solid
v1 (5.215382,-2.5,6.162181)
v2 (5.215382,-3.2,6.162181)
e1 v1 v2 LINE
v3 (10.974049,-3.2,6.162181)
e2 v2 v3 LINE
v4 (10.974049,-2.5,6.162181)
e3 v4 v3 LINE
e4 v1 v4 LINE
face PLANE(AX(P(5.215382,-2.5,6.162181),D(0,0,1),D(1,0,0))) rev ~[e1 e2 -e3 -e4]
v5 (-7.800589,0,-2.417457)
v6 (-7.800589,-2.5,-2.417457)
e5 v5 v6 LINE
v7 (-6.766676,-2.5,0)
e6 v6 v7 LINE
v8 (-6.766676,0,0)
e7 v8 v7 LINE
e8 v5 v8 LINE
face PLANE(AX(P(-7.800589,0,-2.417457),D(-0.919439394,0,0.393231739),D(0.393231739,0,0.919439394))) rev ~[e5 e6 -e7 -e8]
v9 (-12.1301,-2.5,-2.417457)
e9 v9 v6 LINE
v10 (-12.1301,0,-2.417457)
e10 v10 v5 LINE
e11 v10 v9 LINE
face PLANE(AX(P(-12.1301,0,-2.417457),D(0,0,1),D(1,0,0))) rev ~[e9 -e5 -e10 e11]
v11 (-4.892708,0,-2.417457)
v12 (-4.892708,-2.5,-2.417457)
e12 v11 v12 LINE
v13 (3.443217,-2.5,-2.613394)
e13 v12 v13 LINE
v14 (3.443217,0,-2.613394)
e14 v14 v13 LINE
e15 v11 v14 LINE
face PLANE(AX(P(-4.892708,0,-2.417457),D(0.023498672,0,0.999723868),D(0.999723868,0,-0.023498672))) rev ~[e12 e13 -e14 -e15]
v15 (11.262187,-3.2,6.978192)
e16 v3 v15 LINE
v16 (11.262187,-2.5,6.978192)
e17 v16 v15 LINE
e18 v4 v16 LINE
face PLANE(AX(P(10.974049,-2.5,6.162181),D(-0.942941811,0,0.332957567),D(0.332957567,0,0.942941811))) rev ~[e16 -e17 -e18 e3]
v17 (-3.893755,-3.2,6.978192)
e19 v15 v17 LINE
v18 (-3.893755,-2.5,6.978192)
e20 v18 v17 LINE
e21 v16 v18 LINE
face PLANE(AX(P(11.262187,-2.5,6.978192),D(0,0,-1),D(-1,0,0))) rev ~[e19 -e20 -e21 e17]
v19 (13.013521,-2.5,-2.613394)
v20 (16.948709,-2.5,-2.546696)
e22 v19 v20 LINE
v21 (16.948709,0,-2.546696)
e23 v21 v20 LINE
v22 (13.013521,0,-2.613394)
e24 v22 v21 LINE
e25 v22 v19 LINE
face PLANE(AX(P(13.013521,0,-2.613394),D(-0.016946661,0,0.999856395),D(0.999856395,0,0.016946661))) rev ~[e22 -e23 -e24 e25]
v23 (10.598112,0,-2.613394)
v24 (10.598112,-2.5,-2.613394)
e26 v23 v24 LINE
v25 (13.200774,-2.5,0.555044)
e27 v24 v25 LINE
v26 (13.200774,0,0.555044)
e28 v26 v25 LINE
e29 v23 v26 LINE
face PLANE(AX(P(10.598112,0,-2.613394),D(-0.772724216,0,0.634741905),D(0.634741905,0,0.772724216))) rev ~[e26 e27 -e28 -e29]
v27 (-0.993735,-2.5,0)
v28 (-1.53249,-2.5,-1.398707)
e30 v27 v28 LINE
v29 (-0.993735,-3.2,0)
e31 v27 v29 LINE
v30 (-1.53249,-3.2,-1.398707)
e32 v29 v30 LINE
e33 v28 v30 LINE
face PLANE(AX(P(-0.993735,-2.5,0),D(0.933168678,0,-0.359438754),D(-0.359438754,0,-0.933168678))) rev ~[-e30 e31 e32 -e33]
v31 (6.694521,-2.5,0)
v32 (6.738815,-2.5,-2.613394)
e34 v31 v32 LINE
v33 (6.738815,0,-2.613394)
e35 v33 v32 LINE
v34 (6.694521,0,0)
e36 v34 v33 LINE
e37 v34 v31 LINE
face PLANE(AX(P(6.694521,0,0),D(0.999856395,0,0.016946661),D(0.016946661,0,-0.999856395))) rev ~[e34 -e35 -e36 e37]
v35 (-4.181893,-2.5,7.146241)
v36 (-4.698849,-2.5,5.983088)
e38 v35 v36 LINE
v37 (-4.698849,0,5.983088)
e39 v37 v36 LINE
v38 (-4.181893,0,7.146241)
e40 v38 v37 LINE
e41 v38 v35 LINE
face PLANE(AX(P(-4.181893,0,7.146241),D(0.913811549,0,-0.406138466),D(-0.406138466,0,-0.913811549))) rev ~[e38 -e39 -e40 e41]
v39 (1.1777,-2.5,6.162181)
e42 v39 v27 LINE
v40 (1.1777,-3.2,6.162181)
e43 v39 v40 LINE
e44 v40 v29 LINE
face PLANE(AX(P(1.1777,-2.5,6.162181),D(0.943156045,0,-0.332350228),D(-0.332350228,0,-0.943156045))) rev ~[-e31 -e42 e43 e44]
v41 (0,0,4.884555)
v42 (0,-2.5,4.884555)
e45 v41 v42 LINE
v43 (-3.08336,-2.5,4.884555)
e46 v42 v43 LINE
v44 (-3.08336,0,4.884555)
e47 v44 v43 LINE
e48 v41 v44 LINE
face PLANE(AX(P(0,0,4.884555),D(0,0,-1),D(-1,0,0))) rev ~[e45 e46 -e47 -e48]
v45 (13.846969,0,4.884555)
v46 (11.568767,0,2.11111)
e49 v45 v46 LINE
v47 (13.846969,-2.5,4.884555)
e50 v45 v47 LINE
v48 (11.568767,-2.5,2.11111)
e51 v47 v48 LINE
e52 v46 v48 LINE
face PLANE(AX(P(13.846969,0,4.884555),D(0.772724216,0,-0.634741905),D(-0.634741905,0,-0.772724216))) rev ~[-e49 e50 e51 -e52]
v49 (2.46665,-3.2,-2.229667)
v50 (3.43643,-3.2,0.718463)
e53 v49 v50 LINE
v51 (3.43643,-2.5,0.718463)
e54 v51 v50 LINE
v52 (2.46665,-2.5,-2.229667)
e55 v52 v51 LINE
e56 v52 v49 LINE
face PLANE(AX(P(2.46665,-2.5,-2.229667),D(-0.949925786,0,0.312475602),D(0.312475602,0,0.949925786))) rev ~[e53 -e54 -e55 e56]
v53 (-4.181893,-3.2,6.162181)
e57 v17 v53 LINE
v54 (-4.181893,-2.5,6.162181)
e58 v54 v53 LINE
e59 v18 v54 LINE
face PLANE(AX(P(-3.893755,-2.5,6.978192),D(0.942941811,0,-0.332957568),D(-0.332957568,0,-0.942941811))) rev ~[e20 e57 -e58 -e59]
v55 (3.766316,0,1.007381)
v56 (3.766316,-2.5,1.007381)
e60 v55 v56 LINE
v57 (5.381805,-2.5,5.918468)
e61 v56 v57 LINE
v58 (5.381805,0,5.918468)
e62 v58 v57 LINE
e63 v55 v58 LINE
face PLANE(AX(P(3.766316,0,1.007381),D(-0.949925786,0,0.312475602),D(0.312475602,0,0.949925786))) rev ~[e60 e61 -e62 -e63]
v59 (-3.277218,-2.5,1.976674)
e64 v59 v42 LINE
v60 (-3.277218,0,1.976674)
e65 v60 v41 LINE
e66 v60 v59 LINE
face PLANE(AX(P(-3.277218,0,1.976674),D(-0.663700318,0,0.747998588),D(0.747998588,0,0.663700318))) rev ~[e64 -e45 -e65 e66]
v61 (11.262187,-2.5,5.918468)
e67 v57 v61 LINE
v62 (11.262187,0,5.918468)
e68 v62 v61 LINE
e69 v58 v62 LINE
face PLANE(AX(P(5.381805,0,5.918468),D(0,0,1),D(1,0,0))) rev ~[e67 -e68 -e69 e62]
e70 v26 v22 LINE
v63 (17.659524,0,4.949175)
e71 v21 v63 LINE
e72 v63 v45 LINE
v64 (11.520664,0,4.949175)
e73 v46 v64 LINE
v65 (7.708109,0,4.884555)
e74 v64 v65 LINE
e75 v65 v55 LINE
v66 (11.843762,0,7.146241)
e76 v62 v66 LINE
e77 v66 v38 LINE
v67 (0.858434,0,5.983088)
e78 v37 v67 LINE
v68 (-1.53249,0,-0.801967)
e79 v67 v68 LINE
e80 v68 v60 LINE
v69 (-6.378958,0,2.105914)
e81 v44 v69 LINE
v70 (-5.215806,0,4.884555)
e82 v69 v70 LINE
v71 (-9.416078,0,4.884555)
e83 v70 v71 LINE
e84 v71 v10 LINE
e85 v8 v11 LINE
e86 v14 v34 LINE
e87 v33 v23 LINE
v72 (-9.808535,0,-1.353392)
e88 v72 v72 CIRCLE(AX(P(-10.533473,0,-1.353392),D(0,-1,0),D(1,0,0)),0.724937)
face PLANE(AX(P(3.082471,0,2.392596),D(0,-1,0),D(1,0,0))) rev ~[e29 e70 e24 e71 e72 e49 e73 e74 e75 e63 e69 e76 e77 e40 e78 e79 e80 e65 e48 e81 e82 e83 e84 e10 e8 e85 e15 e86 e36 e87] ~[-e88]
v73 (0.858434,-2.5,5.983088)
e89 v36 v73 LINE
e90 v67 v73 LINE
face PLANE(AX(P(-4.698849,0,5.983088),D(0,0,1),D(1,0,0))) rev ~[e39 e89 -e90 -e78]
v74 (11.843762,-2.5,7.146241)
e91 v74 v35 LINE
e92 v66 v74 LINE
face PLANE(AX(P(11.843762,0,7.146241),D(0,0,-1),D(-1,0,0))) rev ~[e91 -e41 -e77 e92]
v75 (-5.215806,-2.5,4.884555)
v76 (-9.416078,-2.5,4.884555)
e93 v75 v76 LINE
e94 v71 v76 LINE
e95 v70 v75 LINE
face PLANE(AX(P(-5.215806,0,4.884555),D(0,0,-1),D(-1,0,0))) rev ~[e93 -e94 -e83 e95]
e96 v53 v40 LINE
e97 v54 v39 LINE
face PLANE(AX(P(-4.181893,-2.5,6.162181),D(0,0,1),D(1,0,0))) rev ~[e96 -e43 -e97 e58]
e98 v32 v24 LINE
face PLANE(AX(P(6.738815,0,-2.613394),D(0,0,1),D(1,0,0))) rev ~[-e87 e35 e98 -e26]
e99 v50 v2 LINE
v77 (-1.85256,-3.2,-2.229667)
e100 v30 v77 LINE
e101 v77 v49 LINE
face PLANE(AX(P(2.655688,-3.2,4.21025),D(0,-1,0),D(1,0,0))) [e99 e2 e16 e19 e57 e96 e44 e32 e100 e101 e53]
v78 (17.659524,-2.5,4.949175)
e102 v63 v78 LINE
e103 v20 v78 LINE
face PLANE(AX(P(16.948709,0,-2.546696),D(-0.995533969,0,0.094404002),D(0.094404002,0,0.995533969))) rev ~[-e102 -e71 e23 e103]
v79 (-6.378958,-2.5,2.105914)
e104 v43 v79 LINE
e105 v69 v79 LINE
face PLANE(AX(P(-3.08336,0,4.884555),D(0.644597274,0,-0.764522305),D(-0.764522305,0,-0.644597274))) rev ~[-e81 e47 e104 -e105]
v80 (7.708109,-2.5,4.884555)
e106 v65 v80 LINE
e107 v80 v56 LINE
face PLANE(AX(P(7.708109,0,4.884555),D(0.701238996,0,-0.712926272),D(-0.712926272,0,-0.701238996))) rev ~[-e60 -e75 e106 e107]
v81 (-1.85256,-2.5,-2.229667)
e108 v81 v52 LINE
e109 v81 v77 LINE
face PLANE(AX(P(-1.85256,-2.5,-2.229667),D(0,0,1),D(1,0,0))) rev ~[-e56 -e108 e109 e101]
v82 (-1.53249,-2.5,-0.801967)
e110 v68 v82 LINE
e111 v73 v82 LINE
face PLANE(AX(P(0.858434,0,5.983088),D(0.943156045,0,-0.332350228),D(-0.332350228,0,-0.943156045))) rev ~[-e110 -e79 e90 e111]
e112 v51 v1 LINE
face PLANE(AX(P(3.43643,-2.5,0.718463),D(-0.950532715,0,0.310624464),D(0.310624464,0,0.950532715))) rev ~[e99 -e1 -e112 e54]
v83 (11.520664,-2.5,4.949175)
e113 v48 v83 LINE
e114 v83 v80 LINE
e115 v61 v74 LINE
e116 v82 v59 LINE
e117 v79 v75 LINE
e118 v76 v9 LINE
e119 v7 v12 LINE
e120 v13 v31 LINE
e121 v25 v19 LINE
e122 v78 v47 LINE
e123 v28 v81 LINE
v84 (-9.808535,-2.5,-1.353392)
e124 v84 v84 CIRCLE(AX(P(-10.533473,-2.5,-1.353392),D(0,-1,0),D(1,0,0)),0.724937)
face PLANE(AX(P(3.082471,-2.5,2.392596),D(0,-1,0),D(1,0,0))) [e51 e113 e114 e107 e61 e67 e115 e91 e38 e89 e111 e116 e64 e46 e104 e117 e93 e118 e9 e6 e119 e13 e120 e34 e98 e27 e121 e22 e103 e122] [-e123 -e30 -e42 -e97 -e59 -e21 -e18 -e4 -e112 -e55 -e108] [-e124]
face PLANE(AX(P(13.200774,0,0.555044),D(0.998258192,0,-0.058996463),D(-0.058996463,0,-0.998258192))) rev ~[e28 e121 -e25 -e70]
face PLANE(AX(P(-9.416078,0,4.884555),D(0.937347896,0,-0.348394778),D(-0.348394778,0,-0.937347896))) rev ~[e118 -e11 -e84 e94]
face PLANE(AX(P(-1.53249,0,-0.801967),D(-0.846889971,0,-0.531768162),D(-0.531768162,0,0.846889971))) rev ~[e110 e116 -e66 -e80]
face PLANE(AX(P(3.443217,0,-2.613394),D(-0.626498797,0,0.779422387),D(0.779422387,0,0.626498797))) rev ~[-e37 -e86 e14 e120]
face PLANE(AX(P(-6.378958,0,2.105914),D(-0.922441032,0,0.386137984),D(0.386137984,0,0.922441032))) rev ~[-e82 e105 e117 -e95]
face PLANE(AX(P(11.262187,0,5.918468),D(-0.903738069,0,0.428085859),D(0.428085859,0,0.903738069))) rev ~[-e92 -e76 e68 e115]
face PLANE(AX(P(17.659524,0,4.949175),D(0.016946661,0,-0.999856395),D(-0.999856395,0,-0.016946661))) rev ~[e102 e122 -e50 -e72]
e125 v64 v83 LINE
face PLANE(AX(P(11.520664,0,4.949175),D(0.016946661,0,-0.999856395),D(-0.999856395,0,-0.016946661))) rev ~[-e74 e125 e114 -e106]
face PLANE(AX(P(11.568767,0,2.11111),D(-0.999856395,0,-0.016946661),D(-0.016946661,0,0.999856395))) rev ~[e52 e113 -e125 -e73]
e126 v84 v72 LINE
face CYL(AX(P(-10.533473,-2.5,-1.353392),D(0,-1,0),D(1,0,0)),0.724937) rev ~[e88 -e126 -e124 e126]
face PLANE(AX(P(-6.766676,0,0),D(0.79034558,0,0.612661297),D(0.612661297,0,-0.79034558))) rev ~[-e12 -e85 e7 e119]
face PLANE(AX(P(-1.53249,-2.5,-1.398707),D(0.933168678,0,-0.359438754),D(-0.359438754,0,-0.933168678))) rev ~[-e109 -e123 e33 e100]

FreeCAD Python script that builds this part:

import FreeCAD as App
import Part
import Sketcher
from FreeCAD import Vector


def add_polygon(sketch, points):
    """Adds a closed chain of lines whose ends are joined by coincident constraints."""
    first, n = sketch.GeometryCount, len(points)
    for a, b in zip(points, points[1:] + points[:1]):
        sketch.addGeometry(Part.LineSegment(App.Vector(*a, 0), App.Vector(*b, 0)), False)
    for i in range(n):
        sketch.addConstraint(Sketcher.Constraint("Coincident", first + i, 2, first + (i + 1) % n, 1))

doc = App.newDocument("Part")
params = doc.addObject("Spreadsheet::Sheet", "Params")
for row, (alias, value) in enumerate([
    ("pad1_length", "2.5 mm"),
    ("pad2_length", "0.7 mm"),
], start=1):
    params.set(f"A{row}", alias)
    params.set(f"B{row}", "=" + value)
    params.setAlias(f"B{row}", alias)

body = doc.addObject("PartDesign::Body", "Body")

# Sketch on XZ plane
sketch1 = body.newObject("Sketcher::SketchObject", "Sketch")
sketch1.AttachmentSupport = (doc.getObject("XZ_Plane"), [""])
sketch1.MapMode = "FlatFace"
add_polygon(sketch1, [(-9.416078, 4.884555), (-12.1301, -2.417457), (-7.800589, -2.417457), (-6.766676, 0), (-4.892708, -2.417457), (3.443217, -2.613394), (6.694521, 0), (6.738815, -2.613394), (10.598112, -2.613394), (13.200774, 0.555044), (13.013521, -2.613394), (16.948709, -2.546696), (17.659524, 4.949175), (13.846969, 4.884555), (11.568767, 2.11111), (11.520664, 4.949175), (7.708109, 4.884555), (3.766316, 1.007381), (5.381805, 5.918468), (11.262187, 5.918468), (11.843762, 7.146241), (-4.181893, 7.146241), (-4.698849, 5.983088), (0.858434, 5.983088), (-1.53249, -0.801967), (-3.277218, 1.976674), (0, 4.884555), (-3.08336, 4.884555), (-6.378958, 2.105914), (-5.215806, 4.884555)])  # lines 0-29
sketch1.addConstraint(Sketcher.Constraint("Horizontal", 1))
sketch1.addConstraint(Sketcher.Constraint("Horizontal", 7))
sketch1.addConstraint(Sketcher.Constraint("Horizontal", 18))
sketch1.addConstraint(Sketcher.Constraint("Horizontal", 20))
sketch1.addConstraint(Sketcher.Constraint("Horizontal", 22))
sketch1.addConstraint(Sketcher.Constraint("Horizontal", 26))
sketch1.addConstraint(Sketcher.Constraint("Horizontal", 29))
sketch1.addConstraint(Sketcher.Constraint("PointOnObject", 2, 2, -1))
sketch1.addConstraint(Sketcher.Constraint("PointOnObject", 5, 2, -1))
sketch1.addConstraint(Sketcher.Constraint("PointOnObject", 25, 2, -2))
sketch1.addConstraint(Sketcher.Constraint("Perpendicular", 6, 10))
sketch1.addConstraint(Sketcher.Constraint("Parallel", 10, 12))
sketch1.addConstraint(Sketcher.Constraint("Parallel", 8, 13))
sketch1.addConstraint(Sketcher.Constraint("Perpendicular", 12, 14))
sketch1.addConstraint(Sketcher.Constraint("Perpendicular", 14, 15))
sketch1.addConstraint(Sketcher.Constraint("Horizontal", 1, 2, 3, 2))
sketch1.addConstraint(Sketcher.Constraint("Horizontal", 4, 2, 6, 2))
sketch1.addConstraint(Sketcher.Constraint("Horizontal", 7, 2, 9, 2))
sketch1.addConstraint(Sketcher.Constraint("Horizontal", 11, 2, 14, 2))
sketch1.addConstraint(Sketcher.Constraint("Horizontal", 12, 2, 15, 2))
sketch1.addConstraint(Sketcher.Constraint("Horizontal", 15, 2, 25, 2))
sketch1.addConstraint(Sketcher.Constraint("Horizontal", 26, 2, 28, 2))
sketch1.addConstraint(Sketcher.Constraint("DistanceX", 5, 2, 9, 2, 6.319))
sketch1.addConstraint(Sketcher.Constraint("DistanceX", 1, 1, 1, 2, 4.329511))
sketch1.addConstraint(Sketcher.Constraint("DistanceX", 18, 1, 18, 2, 5.880382))
sketch1.addConstraint(Sketcher.Constraint("DistanceX", 26, 2, 26, 1, 3.08336))
sketch1.addConstraint(Sketcher.Constraint("DistanceX", 0, 2, -1, 1, 12.1301))
sketch1.addConstraint(Sketcher.Constraint("DistanceX", 4, 2, 6, 2, 3.295598))
sketch1.addConstraint(Sketcher.Constraint("DistanceY", 3, 2, 8, 2, 2.9725))
sketch1.addConstraint(Sketcher.Constraint("DistanceX", 4, 2, 16, 2, 0.323098))
sketch1.addConstraint(Sketcher.Constraint("DistanceX", 14, 2, 19, 2, 0.323098))
sketch1.addConstraint(Sketcher.Constraint("DistanceX", 1, 2, 23, 2, 6.268099))
sketch1.addConstraint(Sketcher.Constraint("DistanceX", 27, 2, 26, 2, 3.295598))
sketch1.addConstraint(Sketcher.Constraint("Distance", 6, 2.613769))
sketch1.addConstraint(Sketcher.Constraint("Distance", 13, 3.589179))
sketch1.addConstraint(Sketcher.Constraint("Distance", 17, 5.16997))
sketch1.addConstraint(Sketcher.Constraint("Distance", 19, 1.358549))
sketch1.addConstraint(Sketcher.Constraint("Distance", 21, 1.272858))
sketch1.addConstraint(Sketcher.Constraint("Distance", 23, 7.19399))
sketch1.addConstraint(Sketcher.Constraint("Distance", 28, 3.01227))
sketch1.addConstraint(Sketcher.Constraint("DistanceX", 7, 1, 7, 2, 3.859296))
sketch1.addConstraint(Sketcher.Constraint("DistanceX", 20, 2, 20, 1, 16.025655))
sketch1.addConstraint(Sketcher.Constraint("DistanceX", 22, 1, 22, 2, 5.557284))
sketch1.addConstraint(Sketcher.Constraint("DistanceX", 29, 2, 29, 1, 4.200272))
sketch1.addConstraint(Sketcher.Constraint("DistanceX", -1, 1, 5, 2, 6.694521))
sketch1.addConstraint(Sketcher.Constraint("DistanceX", -1, 1, 7, 2, 10.598112))
sketch1.addConstraint(Sketcher.Constraint("DistanceX", -1, 1, 10, 2, 16.948709))
sketch1.addConstraint(Sketcher.Constraint("DistanceX", -1, 1, 12, 2, 13.846969))
sketch1.addConstraint(Sketcher.Constraint("DistanceY", -1, 1, 13, 2, 2.11111))
sketch1.addConstraint(Sketcher.Constraint("DistanceX", -1, 1, 15, 2, 7.708109))
sketch1.addConstraint(Sketcher.Constraint("DistanceY", -1, 1, 16, 2, 1.007381))
sketch1.addConstraint(Sketcher.Constraint("DistanceY", -1, 1, 17, 2, 5.918468))
sketch1.addConstraint(Sketcher.Constraint("DistanceY", -1, 1, 19, 2, 7.146241))
sketch1.addConstraint(Sketcher.Constraint("DistanceX", 21, 2, -1, 1, 4.698849))
sketch1.addConstraint(Sketcher.Constraint("DistanceX", 24, 2, -1, 1, 3.277218))
sketch1.addConstraint(Sketcher.Constraint("DistanceX", 29, 2, -1, 1, 9.416078))
sketch1.addConstraint(Sketcher.Constraint("DistanceX", 1, 2, 3, 2, 2.907881))
sketch1.addConstraint(Sketcher.Constraint("DistanceX", 2, 2, 6, 2, 13.505491))
sketch1.addConstraint(Sketcher.Constraint("DistanceX", 6, 2, 8, 2, 6.461958))
sketch1.addConstraint(Sketcher.Constraint("DistanceY", 23, 2, 24, 2, 2.778642))
pad1 = body.newObject("PartDesign::Pad", "Pad")
pad1.Profile = sketch1
pad1.setExpression("Length", "Params.pad1_length")

# Sketch on XZ plane
sketch2 = body.newObject("Sketcher::SketchObject", "Sketch001")
sketch2.AttachmentSupport = (doc.getObject("XZ_Plane"), [""])
sketch2.MapMode = "FlatFace"
sketch2.AttachmentOffset = App.Placement(Vector(0, 0, 2.5), App.Rotation())
sketch2.addGeometry(Part.Circle(Vector(-10.5, -1.4, 0), Vector(0, 0, 1), 0.7), False)
sketch2.addConstraint(Sketcher.Constraint("Diameter", 0, 1.449874))
sketch2.addConstraint(Sketcher.Constraint("DistanceX", 0, 3, -1, 1, 10.533473))
sketch2.addConstraint(Sketcher.Constraint("DistanceY", 0, 3, -1, 1, 1.353392))
pocket1 = body.newObject("PartDesign::Pocket", "Pocket")
pocket1.Profile = sketch2
pocket1.Type = "ThroughAll"

# Sketch on XZ plane
sketch3 = body.newObject("Sketcher::SketchObject", "Sketch002")
sketch3.AttachmentSupport = (doc.getObject("XZ_Plane"), [""])
sketch3.MapMode = "FlatFace"
sketch3.AttachmentOffset = App.Placement(Vector(0, 0, 2.5), App.Rotation())
add_polygon(sketch3, [(-3.9, 7), (-4.2, 6.2), (1.2, 6.2), (-1, 0), (-1.5, -1.4), (-1.9, -2.2), (2.5, -2.2), (3.4, 0.7), (5.2, 6.2), (11, 6.2), (11.3, 7)])  # lines 0-10
sketch3.addConstraint(Sketcher.Constraint("Horizontal", 1))
sketch3.addConstraint(Sketcher.Constraint("Horizontal", 5))
sketch3.addConstraint(Sketcher.Constraint("Horizontal", 8))
sketch3.addConstraint(Sketcher.Constraint("Horizontal", 10))
sketch3.addConstraint(Sketcher.Constraint("PointOnObject", 2, 2, -1))
sketch3.addConstraint(Sketcher.Constraint("Parallel", 3, 4))
sketch3.addConstraint(Sketcher.Constraint("Parallel", 0, 9))
sketch3.addConstraint(Sketcher.Constraint("Horizontal", 1, 2, 7, 2))
sketch3.addConstraint(Sketcher.Constraint("DistanceX", 5, 1, 5, 2, 4.31921))
sketch3.addConstraint(Sketcher.Constraint("DistanceX", 10, 2, 10, 1, 15.155941))
sketch3.addConstraint(Sketcher.Constraint("DistanceX", -1, 1, 1, 2, 1.1777))
sketch3.addConstraint(Sketcher.Constraint("DistanceX", 5, 2, 8, 2, 8.507399))
sketch3.addConstraint(Sketcher.Constraint("DistanceY", 3, 2, 10, 2, 8.376899))
sketch3.addConstraint(Sketcher.Constraint("Distance", 0, 0.865389))
sketch3.addConstraint(Sketcher.Constraint("Distance", 3, 1.498879))
sketch3.addConstraint(Sketcher.Constraint("Distance", 4, 0.890472))
sketch3.addConstraint(Sketcher.Constraint("DistanceX", 1, 1, 1, 2, 5.359593))
sketch3.addConstraint(Sketcher.Constraint("DistanceX", 8, 1, 8, 2, 5.758667))
sketch3.addConstraint(Sketcher.Constraint("DistanceY", -1, 1, 0, 2, 6.162181))
sketch3.addConstraint(Sketcher.Constraint("DistanceX", 3, 2, -1, 1, 1.53249))
sketch3.addConstraint(Sketcher.Constraint("DistanceX", -1, 1, 6, 2, 3.43643))
sketch3.addConstraint(Sketcher.Constraint("DistanceY", 5, 2, 6, 2, 2.94813))
pad2 = body.newObject("PartDesign::Pad", "Pad001")
pad2.Profile = sketch3
pad2.setExpression("Length", "Params.pad2_length")

doc.recompute()
